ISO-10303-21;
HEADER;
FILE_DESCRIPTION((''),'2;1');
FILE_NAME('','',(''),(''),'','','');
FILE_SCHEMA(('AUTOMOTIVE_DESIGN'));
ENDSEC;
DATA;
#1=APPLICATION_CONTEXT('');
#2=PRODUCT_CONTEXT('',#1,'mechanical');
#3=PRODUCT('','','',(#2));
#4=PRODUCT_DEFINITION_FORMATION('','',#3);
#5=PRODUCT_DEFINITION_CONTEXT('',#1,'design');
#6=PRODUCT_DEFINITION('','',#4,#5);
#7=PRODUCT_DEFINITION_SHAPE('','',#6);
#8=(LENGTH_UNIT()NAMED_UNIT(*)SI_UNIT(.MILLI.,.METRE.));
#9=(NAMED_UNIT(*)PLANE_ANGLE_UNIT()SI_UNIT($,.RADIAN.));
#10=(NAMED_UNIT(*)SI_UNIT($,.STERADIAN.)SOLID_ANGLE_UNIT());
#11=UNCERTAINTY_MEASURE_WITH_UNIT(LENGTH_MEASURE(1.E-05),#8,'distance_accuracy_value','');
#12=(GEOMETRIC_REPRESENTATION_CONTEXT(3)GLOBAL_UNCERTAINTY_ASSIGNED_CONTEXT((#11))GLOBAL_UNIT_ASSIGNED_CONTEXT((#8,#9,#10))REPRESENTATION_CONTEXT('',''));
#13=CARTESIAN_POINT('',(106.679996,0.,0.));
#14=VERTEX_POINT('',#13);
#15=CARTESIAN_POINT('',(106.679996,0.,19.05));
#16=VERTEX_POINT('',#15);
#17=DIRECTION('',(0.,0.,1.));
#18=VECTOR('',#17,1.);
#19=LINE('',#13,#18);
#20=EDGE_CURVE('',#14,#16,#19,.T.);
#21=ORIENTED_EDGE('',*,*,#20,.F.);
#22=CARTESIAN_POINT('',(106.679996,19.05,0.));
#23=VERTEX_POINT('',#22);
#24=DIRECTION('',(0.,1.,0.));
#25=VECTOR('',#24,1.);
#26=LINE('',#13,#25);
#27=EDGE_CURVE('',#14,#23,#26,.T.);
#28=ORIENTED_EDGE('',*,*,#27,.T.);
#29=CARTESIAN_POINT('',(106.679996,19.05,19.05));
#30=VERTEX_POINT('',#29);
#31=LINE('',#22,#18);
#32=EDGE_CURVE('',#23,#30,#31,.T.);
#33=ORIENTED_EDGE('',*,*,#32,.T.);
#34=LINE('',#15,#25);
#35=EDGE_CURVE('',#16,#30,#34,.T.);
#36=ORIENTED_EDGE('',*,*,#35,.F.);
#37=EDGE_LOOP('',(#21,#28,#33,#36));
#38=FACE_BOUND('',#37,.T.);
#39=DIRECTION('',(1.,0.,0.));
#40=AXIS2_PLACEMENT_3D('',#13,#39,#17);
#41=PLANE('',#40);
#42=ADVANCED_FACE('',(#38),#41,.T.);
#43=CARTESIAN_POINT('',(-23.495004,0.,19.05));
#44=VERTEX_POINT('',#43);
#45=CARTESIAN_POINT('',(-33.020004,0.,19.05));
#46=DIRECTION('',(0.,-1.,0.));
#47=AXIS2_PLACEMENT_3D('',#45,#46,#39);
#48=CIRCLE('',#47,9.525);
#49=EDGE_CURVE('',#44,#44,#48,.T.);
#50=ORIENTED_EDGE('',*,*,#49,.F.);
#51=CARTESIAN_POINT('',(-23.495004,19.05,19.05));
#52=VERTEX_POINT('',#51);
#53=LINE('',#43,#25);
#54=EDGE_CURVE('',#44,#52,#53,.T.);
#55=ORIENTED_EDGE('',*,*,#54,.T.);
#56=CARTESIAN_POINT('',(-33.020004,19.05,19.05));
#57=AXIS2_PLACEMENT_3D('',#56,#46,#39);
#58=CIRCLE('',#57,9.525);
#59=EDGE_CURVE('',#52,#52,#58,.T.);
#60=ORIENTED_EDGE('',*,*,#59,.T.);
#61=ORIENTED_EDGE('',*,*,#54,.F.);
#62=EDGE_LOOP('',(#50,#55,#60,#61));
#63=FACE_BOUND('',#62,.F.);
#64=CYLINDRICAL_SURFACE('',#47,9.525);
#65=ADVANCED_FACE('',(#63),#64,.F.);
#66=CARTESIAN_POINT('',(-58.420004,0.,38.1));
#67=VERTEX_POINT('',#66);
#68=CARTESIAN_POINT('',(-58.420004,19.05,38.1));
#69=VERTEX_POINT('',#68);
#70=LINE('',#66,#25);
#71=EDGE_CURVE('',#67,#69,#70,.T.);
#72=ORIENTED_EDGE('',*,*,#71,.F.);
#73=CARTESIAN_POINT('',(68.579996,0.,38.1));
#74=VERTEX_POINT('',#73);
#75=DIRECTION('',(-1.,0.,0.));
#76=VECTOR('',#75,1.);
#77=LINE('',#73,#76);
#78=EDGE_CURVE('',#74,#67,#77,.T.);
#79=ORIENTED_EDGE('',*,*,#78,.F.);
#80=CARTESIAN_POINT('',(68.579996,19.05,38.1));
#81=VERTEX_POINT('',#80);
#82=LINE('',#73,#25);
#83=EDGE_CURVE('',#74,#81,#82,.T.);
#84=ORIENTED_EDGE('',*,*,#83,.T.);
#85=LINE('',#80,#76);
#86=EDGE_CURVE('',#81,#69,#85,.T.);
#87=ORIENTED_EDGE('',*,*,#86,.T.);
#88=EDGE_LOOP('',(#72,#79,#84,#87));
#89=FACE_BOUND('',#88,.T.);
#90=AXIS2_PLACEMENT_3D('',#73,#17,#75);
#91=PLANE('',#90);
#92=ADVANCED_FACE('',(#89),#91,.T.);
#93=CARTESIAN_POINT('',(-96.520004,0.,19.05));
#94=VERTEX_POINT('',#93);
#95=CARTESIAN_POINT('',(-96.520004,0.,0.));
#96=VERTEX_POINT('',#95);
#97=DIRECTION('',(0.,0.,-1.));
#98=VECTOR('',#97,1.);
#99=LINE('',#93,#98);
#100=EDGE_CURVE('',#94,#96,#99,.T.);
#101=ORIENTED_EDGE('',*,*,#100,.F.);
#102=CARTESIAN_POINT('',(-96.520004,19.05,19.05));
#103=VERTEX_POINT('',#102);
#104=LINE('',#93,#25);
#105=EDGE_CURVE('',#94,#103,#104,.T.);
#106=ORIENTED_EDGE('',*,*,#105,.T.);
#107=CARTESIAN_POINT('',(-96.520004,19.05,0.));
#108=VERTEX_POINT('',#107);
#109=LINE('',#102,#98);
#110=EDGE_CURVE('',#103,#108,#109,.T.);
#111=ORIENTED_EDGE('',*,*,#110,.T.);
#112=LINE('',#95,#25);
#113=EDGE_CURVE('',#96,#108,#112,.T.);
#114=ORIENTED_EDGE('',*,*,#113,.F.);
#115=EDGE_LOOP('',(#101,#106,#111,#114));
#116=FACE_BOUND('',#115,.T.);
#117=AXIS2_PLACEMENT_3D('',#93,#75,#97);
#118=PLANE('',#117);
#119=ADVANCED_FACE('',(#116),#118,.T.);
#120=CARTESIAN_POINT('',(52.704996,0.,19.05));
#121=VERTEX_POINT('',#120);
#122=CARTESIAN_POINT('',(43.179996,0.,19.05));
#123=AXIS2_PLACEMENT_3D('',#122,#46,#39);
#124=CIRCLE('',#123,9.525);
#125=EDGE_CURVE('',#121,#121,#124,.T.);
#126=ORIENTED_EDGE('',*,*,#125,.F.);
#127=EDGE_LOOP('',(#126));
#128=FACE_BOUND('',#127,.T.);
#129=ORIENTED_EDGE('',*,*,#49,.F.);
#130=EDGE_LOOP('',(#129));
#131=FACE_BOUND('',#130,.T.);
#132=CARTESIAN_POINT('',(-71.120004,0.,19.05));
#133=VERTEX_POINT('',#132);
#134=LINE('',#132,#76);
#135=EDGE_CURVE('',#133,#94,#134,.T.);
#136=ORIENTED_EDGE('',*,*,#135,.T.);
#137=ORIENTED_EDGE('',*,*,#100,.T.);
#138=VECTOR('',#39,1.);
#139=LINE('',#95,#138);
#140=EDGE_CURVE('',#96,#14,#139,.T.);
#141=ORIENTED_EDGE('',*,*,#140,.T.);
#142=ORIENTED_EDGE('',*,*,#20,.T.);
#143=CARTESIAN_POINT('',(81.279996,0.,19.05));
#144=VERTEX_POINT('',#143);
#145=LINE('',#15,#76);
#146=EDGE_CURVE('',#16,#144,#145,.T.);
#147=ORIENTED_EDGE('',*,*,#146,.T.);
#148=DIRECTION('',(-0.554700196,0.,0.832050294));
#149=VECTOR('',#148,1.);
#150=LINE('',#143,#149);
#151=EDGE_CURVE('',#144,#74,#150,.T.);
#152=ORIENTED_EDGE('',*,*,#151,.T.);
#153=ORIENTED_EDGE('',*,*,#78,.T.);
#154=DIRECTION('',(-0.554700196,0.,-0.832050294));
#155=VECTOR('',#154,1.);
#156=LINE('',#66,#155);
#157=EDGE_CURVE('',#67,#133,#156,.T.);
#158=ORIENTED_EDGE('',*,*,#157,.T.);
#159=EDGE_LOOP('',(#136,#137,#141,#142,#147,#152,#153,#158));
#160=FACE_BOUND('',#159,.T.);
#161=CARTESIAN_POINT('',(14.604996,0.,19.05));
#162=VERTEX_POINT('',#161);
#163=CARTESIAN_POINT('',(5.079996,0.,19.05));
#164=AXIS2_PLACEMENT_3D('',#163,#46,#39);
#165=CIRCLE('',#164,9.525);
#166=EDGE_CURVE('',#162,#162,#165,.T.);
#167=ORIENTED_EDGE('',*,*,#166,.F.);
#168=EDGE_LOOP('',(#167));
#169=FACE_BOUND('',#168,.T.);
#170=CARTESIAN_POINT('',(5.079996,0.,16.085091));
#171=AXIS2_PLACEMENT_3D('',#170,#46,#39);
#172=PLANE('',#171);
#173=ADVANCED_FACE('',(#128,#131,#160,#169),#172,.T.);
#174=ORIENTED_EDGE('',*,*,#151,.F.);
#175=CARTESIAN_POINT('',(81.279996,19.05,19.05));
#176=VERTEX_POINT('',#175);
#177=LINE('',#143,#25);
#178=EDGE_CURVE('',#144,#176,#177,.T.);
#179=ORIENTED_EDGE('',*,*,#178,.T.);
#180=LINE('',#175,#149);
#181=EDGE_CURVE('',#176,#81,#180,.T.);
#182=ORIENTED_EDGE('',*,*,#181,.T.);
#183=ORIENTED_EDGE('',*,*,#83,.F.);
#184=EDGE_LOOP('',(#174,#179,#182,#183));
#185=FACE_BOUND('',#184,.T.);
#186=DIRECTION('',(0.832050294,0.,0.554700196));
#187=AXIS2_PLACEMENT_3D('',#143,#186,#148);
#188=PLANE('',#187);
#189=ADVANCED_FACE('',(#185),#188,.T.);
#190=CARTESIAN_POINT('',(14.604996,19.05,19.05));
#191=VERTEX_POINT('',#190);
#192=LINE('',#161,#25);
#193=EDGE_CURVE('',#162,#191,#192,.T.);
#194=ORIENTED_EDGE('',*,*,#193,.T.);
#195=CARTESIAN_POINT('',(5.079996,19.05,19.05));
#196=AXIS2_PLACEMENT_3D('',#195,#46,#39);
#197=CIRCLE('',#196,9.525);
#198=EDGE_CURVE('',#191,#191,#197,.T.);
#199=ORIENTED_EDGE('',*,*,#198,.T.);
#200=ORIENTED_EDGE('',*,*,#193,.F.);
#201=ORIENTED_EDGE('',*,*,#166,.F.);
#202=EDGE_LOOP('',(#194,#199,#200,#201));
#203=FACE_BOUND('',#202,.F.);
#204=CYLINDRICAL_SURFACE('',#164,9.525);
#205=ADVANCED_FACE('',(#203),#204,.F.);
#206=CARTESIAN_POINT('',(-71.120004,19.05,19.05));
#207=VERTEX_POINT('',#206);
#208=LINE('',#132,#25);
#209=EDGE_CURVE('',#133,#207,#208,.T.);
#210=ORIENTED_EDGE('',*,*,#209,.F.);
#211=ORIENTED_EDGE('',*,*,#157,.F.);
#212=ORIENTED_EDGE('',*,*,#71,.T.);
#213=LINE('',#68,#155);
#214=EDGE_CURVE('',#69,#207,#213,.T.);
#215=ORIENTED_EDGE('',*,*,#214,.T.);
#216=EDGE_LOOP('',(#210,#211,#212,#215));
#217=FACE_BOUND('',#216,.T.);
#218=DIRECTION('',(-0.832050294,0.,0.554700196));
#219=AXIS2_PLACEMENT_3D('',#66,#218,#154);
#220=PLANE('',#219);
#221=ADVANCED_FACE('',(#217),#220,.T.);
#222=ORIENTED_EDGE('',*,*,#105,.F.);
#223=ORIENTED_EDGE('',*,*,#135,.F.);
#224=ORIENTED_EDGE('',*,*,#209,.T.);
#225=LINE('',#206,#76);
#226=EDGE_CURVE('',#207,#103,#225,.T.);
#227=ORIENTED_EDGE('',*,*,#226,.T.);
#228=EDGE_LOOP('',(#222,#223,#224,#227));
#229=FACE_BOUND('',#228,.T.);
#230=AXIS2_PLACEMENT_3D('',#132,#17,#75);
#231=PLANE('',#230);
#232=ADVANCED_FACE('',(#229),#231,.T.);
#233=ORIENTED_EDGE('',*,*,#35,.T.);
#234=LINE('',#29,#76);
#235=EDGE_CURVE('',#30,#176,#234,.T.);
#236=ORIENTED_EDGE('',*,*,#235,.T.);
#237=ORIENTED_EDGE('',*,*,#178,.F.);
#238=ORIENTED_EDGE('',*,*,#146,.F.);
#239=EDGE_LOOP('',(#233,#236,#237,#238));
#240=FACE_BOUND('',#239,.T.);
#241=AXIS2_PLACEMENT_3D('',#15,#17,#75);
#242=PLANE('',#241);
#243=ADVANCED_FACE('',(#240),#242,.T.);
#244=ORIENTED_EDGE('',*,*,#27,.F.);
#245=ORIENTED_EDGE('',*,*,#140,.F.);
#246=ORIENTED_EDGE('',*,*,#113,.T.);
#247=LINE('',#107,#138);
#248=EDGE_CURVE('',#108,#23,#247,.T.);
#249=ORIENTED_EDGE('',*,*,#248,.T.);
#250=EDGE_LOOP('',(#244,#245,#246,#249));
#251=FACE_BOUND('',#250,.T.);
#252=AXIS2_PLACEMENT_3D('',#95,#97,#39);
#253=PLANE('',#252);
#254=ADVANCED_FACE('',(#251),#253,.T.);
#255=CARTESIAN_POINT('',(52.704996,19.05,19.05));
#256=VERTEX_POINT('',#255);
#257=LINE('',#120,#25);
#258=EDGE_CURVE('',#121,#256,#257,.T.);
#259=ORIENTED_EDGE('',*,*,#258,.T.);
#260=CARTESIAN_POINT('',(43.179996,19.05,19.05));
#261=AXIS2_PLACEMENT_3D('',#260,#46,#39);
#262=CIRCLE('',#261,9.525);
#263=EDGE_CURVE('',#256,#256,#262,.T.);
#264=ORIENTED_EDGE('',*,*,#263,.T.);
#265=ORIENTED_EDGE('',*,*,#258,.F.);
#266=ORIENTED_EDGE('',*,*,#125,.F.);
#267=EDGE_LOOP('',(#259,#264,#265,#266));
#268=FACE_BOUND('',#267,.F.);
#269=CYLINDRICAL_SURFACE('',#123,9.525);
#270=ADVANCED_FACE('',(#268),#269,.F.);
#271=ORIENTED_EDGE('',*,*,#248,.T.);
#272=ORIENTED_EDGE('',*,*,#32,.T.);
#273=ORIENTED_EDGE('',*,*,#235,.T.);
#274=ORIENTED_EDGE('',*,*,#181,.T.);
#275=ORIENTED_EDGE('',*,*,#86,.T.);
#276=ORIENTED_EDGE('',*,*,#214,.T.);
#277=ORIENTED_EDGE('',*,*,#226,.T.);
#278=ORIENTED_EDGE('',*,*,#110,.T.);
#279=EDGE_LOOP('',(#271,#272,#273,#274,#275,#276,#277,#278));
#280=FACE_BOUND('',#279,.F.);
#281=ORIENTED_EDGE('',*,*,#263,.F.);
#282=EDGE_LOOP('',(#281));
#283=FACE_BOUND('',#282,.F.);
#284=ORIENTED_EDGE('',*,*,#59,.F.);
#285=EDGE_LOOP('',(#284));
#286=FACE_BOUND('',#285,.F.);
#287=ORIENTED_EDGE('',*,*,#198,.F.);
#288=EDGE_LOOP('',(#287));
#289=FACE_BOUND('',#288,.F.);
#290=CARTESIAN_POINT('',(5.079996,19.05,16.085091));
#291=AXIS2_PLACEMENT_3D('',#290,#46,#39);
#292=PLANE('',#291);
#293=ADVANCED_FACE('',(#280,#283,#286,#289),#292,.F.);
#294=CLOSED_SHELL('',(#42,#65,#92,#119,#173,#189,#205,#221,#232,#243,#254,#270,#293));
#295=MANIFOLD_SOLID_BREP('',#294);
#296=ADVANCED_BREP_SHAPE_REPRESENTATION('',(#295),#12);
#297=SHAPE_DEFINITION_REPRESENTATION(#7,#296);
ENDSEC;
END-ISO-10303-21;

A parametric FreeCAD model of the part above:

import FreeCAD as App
import Part
import Sketcher
Q = App.Units.Quantity


def add_polygon(sketch, points):
    """Adds a closed chain of lines whose ends are joined by coincident constraints."""
    first, n = sketch.GeometryCount, len(points)
    for a, b in zip(points, points[1:] + points[:1]):
        sketch.addGeometry(Part.LineSegment(App.Vector(*a, 0), App.Vector(*b, 0)), False)
    for i in range(n):
        sketch.addConstraint(Sketcher.Constraint("Coincident", first + i, 2, first + (i + 1) % n, 1))

doc = App.newDocument("Part")
body = doc.addObject("PartDesign::Body", "Body")

sketch1 = body.newObject("Sketcher::SketchObject", "Sketch")
sketch1.AttachmentSupport = (doc.getObject("XZ_Plane"), [""])
sketch1.MapMode = "FlatFace"
add_polygon(sketch1, [(-97, 19), (-97, 0), (107, 0), (107, 19), (81, 19), (69, 38), (-58, 38), (-71, 19)])
sketch1.addGeometry(Part.Circle(App.Vector(-33, 19, 0), App.Vector(0, 0, 1), 10), False)
sketch1.addGeometry(Part.Circle(App.Vector(5, 19, 0), App.Vector(0, 0, 1), 10), False)
sketch1.addGeometry(Part.Circle(App.Vector(43, 19, 0), App.Vector(0, 0, 1), 10), False)
sketch1.addConstraint([
    Sketcher.Constraint("Vertical", 0),
    Sketcher.Constraint("Horizontal", 1),
    Sketcher.Constraint("Vertical", 2),
    Sketcher.Constraint("Horizontal", 3),
    Sketcher.Constraint("Horizontal", 5),
    Sketcher.Constraint("Horizontal", 7),
    Sketcher.Constraint("Equal", 8, 9),
    Sketcher.Constraint("Equal", 9, 10),
    Sketcher.Constraint("PointOnObject", 0, 2, -1),
    Sketcher.Constraint("Horizontal", 8, 3, 9, 3),
    Sketcher.Constraint("Horizontal", 9, 3, 10, 3),
    Sketcher.Constraint("Horizontal", 10, 3, 2, 2),
    Sketcher.Constraint("Horizontal", 3, 2, 6, 2),
    Sketcher.Constraint("Equal", 3, 7),
    Sketcher.Constraint("Equal", 4, 6),
    Sketcher.Constraint("Diameter", 8, Q("0.75 in")),
    Sketcher.Constraint("DistanceX", 1, 1, 1, 2, Q("8 in")),
    Sketcher.Constraint("DistanceX", 3, 2, 3, 1, Q("1 in")),
    Sketcher.Constraint("DistanceX", 5, 2, 5, 1, Q("5 in")),
    Sketcher.Constraint("DistanceX", 8, 3, 10, 3, Q("3 in")),
    Sketcher.Constraint("DistanceX", 0, 2, 9, 3, Q("4 in")),
    Sketcher.Constraint("DistanceX", 10, 3, 4, 2, Q("1 in")),
    Sketcher.Constraint("DistanceY", 0, 2, 0, 1, Q("0.75 in")),
    Sketcher.Constraint("DistanceX", 8, 3, -1, 1, Q("1.3000002 in")),
    Sketcher.Constraint("DistanceY", -1, 1, 4, 2, Q("1.5 in")),
])
pad1 = body.newObject("PartDesign::Pad", "Pad")
pad1.Profile = sketch1
pad1.Length = Q("0.75 in")
pad1.Reversed = True

doc.recompute()
